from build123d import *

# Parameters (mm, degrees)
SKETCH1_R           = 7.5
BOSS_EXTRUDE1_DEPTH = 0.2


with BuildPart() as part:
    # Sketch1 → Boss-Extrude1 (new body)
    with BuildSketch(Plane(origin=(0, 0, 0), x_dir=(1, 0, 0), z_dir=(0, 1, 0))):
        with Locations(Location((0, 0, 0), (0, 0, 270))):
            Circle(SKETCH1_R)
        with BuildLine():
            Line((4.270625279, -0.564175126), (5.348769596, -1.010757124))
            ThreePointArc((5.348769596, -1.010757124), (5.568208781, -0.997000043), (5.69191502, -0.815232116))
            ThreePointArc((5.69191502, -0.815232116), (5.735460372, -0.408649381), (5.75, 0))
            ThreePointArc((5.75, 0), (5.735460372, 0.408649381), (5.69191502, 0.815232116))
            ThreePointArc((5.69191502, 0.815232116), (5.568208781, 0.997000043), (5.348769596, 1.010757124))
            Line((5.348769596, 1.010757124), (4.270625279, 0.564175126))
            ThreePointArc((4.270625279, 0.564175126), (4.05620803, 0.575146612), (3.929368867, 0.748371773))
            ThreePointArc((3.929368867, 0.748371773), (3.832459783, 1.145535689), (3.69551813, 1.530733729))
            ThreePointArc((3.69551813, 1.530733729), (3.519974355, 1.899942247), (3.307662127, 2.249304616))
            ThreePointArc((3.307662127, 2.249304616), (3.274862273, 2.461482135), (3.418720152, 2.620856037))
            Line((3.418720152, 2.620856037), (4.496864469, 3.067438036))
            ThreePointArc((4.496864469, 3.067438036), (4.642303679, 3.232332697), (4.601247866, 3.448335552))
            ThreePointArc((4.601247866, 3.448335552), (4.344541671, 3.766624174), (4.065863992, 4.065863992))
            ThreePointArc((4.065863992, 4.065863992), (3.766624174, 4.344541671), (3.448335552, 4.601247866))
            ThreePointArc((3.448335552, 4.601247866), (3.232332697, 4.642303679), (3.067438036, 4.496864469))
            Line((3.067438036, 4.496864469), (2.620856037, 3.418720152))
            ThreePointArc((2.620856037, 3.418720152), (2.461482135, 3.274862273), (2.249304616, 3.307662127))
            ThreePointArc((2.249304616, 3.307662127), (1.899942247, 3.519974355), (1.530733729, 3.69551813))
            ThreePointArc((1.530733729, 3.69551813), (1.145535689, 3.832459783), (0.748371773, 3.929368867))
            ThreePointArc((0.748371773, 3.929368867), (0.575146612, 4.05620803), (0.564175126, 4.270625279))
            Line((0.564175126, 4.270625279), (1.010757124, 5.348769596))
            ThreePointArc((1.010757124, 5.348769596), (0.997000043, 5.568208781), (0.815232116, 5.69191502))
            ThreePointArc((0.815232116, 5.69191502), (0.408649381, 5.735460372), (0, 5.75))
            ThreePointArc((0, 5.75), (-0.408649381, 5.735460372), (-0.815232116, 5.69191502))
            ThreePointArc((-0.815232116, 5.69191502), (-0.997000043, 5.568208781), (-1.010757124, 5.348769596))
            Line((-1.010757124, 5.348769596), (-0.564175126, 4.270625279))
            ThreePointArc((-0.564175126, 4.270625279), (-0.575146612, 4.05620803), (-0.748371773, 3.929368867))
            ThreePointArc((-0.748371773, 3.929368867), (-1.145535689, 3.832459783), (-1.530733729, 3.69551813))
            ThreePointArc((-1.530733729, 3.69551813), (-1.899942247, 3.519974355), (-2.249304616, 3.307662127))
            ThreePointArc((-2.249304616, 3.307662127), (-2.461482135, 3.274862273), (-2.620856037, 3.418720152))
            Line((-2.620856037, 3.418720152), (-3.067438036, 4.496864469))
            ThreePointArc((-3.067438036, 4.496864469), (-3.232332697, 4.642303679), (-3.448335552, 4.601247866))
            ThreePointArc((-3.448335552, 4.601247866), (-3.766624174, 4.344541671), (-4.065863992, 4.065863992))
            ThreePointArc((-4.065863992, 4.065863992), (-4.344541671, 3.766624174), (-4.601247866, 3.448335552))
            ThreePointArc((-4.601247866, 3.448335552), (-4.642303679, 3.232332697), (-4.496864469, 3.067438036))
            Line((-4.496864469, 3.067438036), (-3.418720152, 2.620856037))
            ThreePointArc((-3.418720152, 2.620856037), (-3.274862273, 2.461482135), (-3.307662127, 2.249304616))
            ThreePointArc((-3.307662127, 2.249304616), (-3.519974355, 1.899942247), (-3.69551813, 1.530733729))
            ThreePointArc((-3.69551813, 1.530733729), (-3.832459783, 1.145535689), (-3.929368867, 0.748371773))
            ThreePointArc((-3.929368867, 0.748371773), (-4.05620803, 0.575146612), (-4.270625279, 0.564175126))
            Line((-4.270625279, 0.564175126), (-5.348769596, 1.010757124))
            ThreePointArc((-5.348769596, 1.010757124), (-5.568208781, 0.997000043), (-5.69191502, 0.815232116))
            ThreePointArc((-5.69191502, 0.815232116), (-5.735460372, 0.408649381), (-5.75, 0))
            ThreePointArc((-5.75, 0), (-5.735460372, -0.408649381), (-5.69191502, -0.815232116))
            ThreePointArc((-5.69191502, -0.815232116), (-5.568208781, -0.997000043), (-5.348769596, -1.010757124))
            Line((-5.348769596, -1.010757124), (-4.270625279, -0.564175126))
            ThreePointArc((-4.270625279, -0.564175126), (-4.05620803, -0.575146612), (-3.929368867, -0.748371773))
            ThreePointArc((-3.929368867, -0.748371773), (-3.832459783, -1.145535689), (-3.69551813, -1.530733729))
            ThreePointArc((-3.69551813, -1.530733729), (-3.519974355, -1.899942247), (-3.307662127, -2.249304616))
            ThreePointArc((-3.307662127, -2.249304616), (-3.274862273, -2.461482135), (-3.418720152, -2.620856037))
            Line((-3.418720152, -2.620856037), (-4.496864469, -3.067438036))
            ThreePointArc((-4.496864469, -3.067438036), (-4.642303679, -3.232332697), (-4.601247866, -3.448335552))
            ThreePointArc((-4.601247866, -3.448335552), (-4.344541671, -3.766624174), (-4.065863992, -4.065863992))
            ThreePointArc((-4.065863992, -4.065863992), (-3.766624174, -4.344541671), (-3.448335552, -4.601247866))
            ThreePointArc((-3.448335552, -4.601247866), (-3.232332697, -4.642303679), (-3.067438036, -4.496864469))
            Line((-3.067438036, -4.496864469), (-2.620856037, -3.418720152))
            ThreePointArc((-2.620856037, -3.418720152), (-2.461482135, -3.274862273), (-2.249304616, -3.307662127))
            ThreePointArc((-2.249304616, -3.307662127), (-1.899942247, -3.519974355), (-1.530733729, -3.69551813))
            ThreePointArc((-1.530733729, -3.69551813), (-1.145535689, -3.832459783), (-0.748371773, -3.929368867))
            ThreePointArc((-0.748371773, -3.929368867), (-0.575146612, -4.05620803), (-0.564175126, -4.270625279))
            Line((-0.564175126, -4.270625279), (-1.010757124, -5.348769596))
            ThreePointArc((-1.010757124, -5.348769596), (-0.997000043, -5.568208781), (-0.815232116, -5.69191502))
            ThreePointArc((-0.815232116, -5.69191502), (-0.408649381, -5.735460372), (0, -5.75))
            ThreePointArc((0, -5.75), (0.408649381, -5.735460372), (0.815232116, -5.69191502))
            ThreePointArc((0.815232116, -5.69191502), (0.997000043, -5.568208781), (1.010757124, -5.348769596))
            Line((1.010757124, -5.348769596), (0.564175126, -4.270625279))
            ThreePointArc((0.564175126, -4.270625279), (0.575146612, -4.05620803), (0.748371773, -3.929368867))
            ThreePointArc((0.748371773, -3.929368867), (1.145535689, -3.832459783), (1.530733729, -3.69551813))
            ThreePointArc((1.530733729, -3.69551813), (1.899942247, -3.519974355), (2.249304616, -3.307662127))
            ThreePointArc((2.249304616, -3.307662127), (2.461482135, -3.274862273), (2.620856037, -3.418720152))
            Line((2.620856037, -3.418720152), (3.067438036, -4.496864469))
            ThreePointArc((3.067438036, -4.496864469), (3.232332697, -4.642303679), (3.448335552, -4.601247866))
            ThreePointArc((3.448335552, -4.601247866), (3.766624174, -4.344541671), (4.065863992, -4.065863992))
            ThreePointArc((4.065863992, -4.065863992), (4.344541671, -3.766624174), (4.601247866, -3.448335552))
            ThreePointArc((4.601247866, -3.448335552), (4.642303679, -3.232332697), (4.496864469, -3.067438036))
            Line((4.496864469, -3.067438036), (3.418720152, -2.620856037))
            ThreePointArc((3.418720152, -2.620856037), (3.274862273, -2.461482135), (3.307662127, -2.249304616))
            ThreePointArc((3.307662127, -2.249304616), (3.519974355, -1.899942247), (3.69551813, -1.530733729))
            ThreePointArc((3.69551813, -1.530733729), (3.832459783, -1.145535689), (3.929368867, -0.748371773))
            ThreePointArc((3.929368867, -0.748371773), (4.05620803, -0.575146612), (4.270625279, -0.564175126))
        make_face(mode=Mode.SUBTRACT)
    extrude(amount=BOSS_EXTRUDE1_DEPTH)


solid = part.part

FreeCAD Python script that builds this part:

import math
import FreeCAD as App
import Part
import Sketcher
from FreeCAD import Vector
Q = App.Units.Quantity

doc = App.newDocument("Part")
body = doc.addObject("PartDesign::Body", "Body")

# Sketch on XZ plane
sketch1 = doc.addObject("Sketcher::SketchObject", "Sketch")
body.addObject(sketch1)
sketch1.AttachmentSupport = (doc.XZ_Plane, [""])
sketch1.MapMode = "FlatFace"
sketch1.addGeometry([
    Part.Circle(Vector(0, 0, 0), Vector(0, 0, 1), 7.5),  # 0
    Part.LineSegment(Vector(5.35, 1.01, 0), Vector(4.27, 0.56, 0)),  # 1
    Part.ArcOfCircle(Part.Circle(Vector(4.17, 0.8, 0), Vector(0, 0, 1), 0.25), math.radians(-169), math.radians(-67)),  # 2
    Part.ArcOfCircle(Part.Circle(Vector(0, 0, 0), Vector(0, 0, 1), 4), math.radians(10.78), math.radians(22.5)),  # 3
    Part.ArcOfCircle(Part.Circle(Vector(0, 0, 0), Vector(0, 0, 1), 4), math.radians(22.5), math.radians(34.22)),  # 4
    Part.ArcOfCircle(Part.Circle(Vector(3.51, 2.39, 0), Vector(0, 0, 1), 0.25), math.radians(112), math.radians(214)),  # 5
    Part.LineSegment(Vector(3.42, 2.62, 0), Vector(4.5, 3.07, 0)),  # 6
    Part.ArcOfCircle(Part.Circle(Vector(4.4, 3.3, 0), Vector(0, 0, 1), 0.25), math.radians(-67), math.radians(37)),  # 7
    Part.ArcOfCircle(Part.Circle(Vector(0, 0, 0), Vector(0, 0, 1), 5.75), math.radians(36.85), math.radians(45)),  # 8
    Part.ArcOfCircle(Part.Circle(Vector(0, 0, 0), Vector(0, 0, 1), 5.75), math.radians(45), math.radians(53.15)),  # 9
    Part.ArcOfCircle(Part.Circle(Vector(3.3, 4.4, 0), Vector(0, 0, 1), 0.25), math.radians(53), math.radians(157)),  # 10
    Part.LineSegment(Vector(3.07, 4.5, 0), Vector(2.62, 3.42, 0)),  # 11
    Part.ArcOfCircle(Part.Circle(Vector(2.39, 3.51, 0), Vector(0, 0, 1), 0.25), math.radians(-124), math.radians(-22)),  # 12
    Part.ArcOfCircle(Part.Circle(Vector(0, 0, 0), Vector(0, 0, 1), 4), math.radians(55.78), math.radians(67.5)),  # 13
    Part.ArcOfCircle(Part.Circle(Vector(0, 0, 0), Vector(0, 0, 1), 4), math.radians(67.5), math.radians(79.22)),  # 14
    Part.ArcOfCircle(Part.Circle(Vector(0.8, 4.17, 0), Vector(0, 0, 1), 0.25), math.radians(157), math.radians(259)),  # 15
    Part.LineSegment(Vector(0.56, 4.27, 0), Vector(1.01, 5.35, 0)),  # 16
    Part.ArcOfCircle(Part.Circle(Vector(0.78, 5.44, 0), Vector(0, 0, 1), 0.25), math.radians(-23), math.radians(82)),  # 17
    Part.ArcOfCircle(Part.Circle(Vector(0, 0, 0), Vector(0, 0, 1), 5.75), math.radians(81.85), math.radians(90)),  # 18
    Part.ArcOfCircle(Part.Circle(Vector(0, 0, 0), Vector(0, 0, 1), 5.75), math.radians(90), math.radians(98.15)),  # 19
    Part.ArcOfCircle(Part.Circle(Vector(-0.78, 5.44, 0), Vector(0, 0, 1), 0.25), math.radians(98), math.radians(203)),  # 20
    Part.LineSegment(Vector(-1.01, 5.35, 0), Vector(-0.56, 4.27, 0)),  # 21
    Part.ArcOfCircle(Part.Circle(Vector(-0.8, 4.17, 0), Vector(0, 0, 1), 0.25), math.radians(-79), math.radians(23)),  # 22
    Part.ArcOfCircle(Part.Circle(Vector(0, 0, 0), Vector(0, 0, 1), 4), math.radians(100.78), math.radians(112.5)),  # 23
    Part.ArcOfCircle(Part.Circle(Vector(0, 0, 0), Vector(0, 0, 1), 4), math.radians(112.5), math.radians(124.22)),  # 24
    Part.ArcOfCircle(Part.Circle(Vector(-2.39, 3.51, 0), Vector(0, 0, 1), 0.25), math.radians(-158), math.radians(-56)),  # 25
    Part.LineSegment(Vector(-2.62, 3.42, 0), Vector(-3.07, 4.5, 0)),  # 26
    Part.ArcOfCircle(Part.Circle(Vector(-3.3, 4.4, 0), Vector(0, 0, 1), 0.25), math.radians(23), math.radians(127)),  # 27
    Part.ArcOfCircle(Part.Circle(Vector(0, 0, 0), Vector(0, 0, 1), 5.75), math.radians(126.85), math.radians(135)),  # 28
    Part.ArcOfCircle(Part.Circle(Vector(0, 0, 0), Vector(0, 0, 1), 5.75), math.radians(135), math.radians(143.15)),  # 29
    Part.ArcOfCircle(Part.Circle(Vector(-4.4, 3.3, 0), Vector(0, 0, 1), 0.25), math.radians(143), math.radians(247)),  # 30
    Part.LineSegment(Vector(-4.5, 3.07, 0), Vector(-3.42, 2.62, 0)),  # 31
    Part.ArcOfCircle(Part.Circle(Vector(-3.51, 2.39, 0), Vector(0, 0, 1), 0.25), math.radians(-34), math.radians(68)),  # 32
    Part.ArcOfCircle(Part.Circle(Vector(0, 0, 0), Vector(0, 0, 1), 4), math.radians(145.78), math.radians(157.5)),  # 33
    Part.ArcOfCircle(Part.Circle(Vector(0, 0, 0), Vector(0, 0, 1), 4), math.radians(157.5), math.radians(169.22)),  # 34
    Part.ArcOfCircle(Part.Circle(Vector(-4.17, 0.8, 0), Vector(0, 0, 1), 0.25), math.radians(-113), math.radians(-11)),  # 35
    Part.LineSegment(Vector(-4.27, 0.56, 0), Vector(-5.35, 1.01, 0)),  # 36
    Part.ArcOfCircle(Part.Circle(Vector(-5.44, 0.78, 0), Vector(0, 0, 1), 0.25), math.radians(67), math.radians(172)),  # 37
    Part.ArcOfCircle(Part.Circle(Vector(0, 0, 0), Vector(0, 0, 1), 5.75), math.radians(171.85), math.radians(180)),  # 38
    Part.ArcOfCircle(Part.Circle(Vector(0, 0, 0), Vector(0, 0, 1), 5.75), math.radians(-180), math.radians(-171.85)),  # 39
    Part.ArcOfCircle(Part.Circle(Vector(-5.44, -0.78, 0), Vector(0, 0, 1), 0.25), math.radians(-172), math.radians(-67)),  # 40
    Part.LineSegment(Vector(-5.35, -1.01, 0), Vector(-4.27, -0.56, 0)),  # 41
    Part.ArcOfCircle(Part.Circle(Vector(-4.17, -0.8, 0), Vector(0, 0, 1), 0.25), math.radians(11), math.radians(113)),  # 42
    Part.ArcOfCircle(Part.Circle(Vector(0, 0, 0), Vector(0, 0, 1), 4), math.radians(-169.22), math.radians(-157.5)),  # 43
    Part.ArcOfCircle(Part.Circle(Vector(0, 0, 0), Vector(0, 0, 1), 4), math.radians(-157.5), math.radians(-145.78)),  # 44
    Part.ArcOfCircle(Part.Circle(Vector(-3.51, -2.39, 0), Vector(0, 0, 1), 0.25), math.radians(-68), math.radians(34)),  # 45
    Part.LineSegment(Vector(-3.42, -2.62, 0), Vector(-4.5, -3.07, 0)),  # 46
    Part.ArcOfCircle(Part.Circle(Vector(-4.4, -3.3, 0), Vector(0, 0, 1), 0.25), math.radians(113), math.radians(217)),  # 47
    Part.ArcOfCircle(Part.Circle(Vector(0, 0, 0), Vector(0, 0, 1), 5.75), math.radians(-143.15), math.radians(-135)),  # 48
    Part.ArcOfCircle(Part.Circle(Vector(0, 0, 0), Vector(0, 0, 1), 5.75), math.radians(-135), math.radians(-126.85)),  # 49
    Part.ArcOfCircle(Part.Circle(Vector(-3.3, -4.4, 0), Vector(0, 0, 1), 0.25), math.radians(-127), math.radians(-23)),  # 50
    Part.LineSegment(Vector(-3.07, -4.5, 0), Vector(-2.62, -3.42, 0)),  # 51
    Part.ArcOfCircle(Part.Circle(Vector(-2.39, -3.51, 0), Vector(0, 0, 1), 0.25), math.radians(56), math.radians(158)),  # 52
    Part.ArcOfCircle(Part.Circle(Vector(0, 0, 0), Vector(0, 0, 1), 4), math.radians(-124.22), math.radians(-112.5)),  # 53
    Part.ArcOfCircle(Part.Circle(Vector(0, 0, 0), Vector(0, 0, 1), 4), math.radians(-112.5), math.radians(-100.78)),  # 54
    Part.ArcOfCircle(Part.Circle(Vector(-0.8, -4.17, 0), Vector(0, 0, 1), 0.25), math.radians(-23), math.radians(79)),  # 55
    Part.LineSegment(Vector(-0.56, -4.27, 0), Vector(-1.01, -5.35, 0)),  # 56
    Part.ArcOfCircle(Part.Circle(Vector(-0.78, -5.44, 0), Vector(0, 0, 1), 0.25), math.radians(157), math.radians(262)),  # 57
    Part.ArcOfCircle(Part.Circle(Vector(0, 0, 0), Vector(0, 0, 1), 5.75), math.radians(-98.15), math.radians(-90)),  # 58
    Part.ArcOfCircle(Part.Circle(Vector(0, 0, 0), Vector(0, 0, 1), 5.75), math.radians(-90), math.radians(-81.85)),  # 59
    Part.ArcOfCircle(Part.Circle(Vector(0.78, -5.44, 0), Vector(0, 0, 1), 0.25), math.radians(-82), math.radians(23)),  # 60
    Part.LineSegment(Vector(1.01, -5.35, 0), Vector(0.56, -4.27, 0)),  # 61
    Part.ArcOfCircle(Part.Circle(Vector(0.8, -4.17, 0), Vector(0, 0, 1), 0.25), math.radians(101), math.radians(203)),  # 62
    Part.ArcOfCircle(Part.Circle(Vector(0, 0, 0), Vector(0, 0, 1), 4), math.radians(-79.22), math.radians(-67.5)),  # 63
    Part.ArcOfCircle(Part.Circle(Vector(0, 0, 0), Vector(0, 0, 1), 4), math.radians(-67.5), math.radians(-55.78)),  # 64
    Part.ArcOfCircle(Part.Circle(Vector(2.39, -3.51, 0), Vector(0, 0, 1), 0.25), math.radians(22), math.radians(124)),  # 65
    Part.LineSegment(Vector(2.62, -3.42, 0), Vector(3.07, -4.5, 0)),  # 66
    Part.ArcOfCircle(Part.Circle(Vector(3.3, -4.4, 0), Vector(0, 0, 1), 0.25), math.radians(-157), math.radians(-53)),  # 67
    Part.ArcOfCircle(Part.Circle(Vector(0, 0, 0), Vector(0, 0, 1), 5.75), math.radians(-53.15), math.radians(-45)),  # 68
    Part.ArcOfCircle(Part.Circle(Vector(0, 0, 0), Vector(0, 0, 1), 5.75), math.radians(-45), math.radians(-36.85)),  # 69
    Part.ArcOfCircle(Part.Circle(Vector(4.4, -3.3, 0), Vector(0, 0, 1), 0.25), math.radians(-37), math.radians(67)),  # 70
    Part.LineSegment(Vector(4.5, -3.07, 0), Vector(3.42, -2.62, 0)),  # 71
    Part.ArcOfCircle(Part.Circle(Vector(3.51, -2.39, 0), Vector(0, 0, 1), 0.25), math.radians(146), math.radians(248)),  # 72
    Part.ArcOfCircle(Part.Circle(Vector(0, 0, 0), Vector(0, 0, 1), 4), math.radians(-34.22), math.radians(-22.5)),  # 73
    Part.ArcOfCircle(Part.Circle(Vector(0, 0, 0), Vector(0, 0, 1), 4), math.radians(-22.5), math.radians(-10.78)),  # 74
    Part.ArcOfCircle(Part.Circle(Vector(4.17, -0.8, 0), Vector(0, 0, 1), 0.25), math.radians(67), math.radians(169)),  # 75
    Part.LineSegment(Vector(4.27, -0.56, 0), Vector(5.35, -1.01, 0)),  # 76
    Part.ArcOfCircle(Part.Circle(Vector(5.44, -0.78, 0), Vector(0, 0, 1), 0.25), math.radians(-113), math.radians(-8)),  # 77
    Part.ArcOfCircle(Part.Circle(Vector(0, 0, 0), Vector(0, 0, 1), 5.75), math.radians(-8.15), math.radians(0)),  # 78
    Part.ArcOfCircle(Part.Circle(Vector(0, 0, 0), Vector(0, 0, 1), 5.75), math.radians(0), math.radians(8.15)),  # 79
    Part.ArcOfCircle(Part.Circle(Vector(5.44, 0.78, 0), Vector(0, 0, 1), 0.25), math.radians(8), math.radians(113)),  # 80
], False)
sketch1.addConstraint([
    Sketcher.Constraint("Tangent", 1, 2, 2, 2),
    Sketcher.Constraint("Tangent", 2, 1, 3, 1),
    Sketcher.Constraint("Tangent", 3, 2, 4, 1),
    Sketcher.Constraint("Tangent", 4, 2, 5, 2),
    Sketcher.Constraint("Tangent", 5, 1, 6, 1),
    Sketcher.Constraint("Tangent", 6, 2, 7, 1),
    Sketcher.Constraint("Tangent", 7, 2, 8, 1),
    Sketcher.Constraint("Tangent", 8, 2, 9, 1),
    Sketcher.Constraint("Tangent", 9, 2, 10, 1),
    Sketcher.Constraint("Tangent", 10, 2, 11, 1),
    Sketcher.Constraint("Tangent", 11, 2, 12, 2),
    Sketcher.Constraint("Tangent", 12, 1, 13, 1),
    Sketcher.Constraint("Tangent", 13, 2, 14, 1),
    Sketcher.Constraint("Tangent", 14, 2, 15, 2),
    Sketcher.Constraint("Tangent", 15, 1, 16, 1),
    Sketcher.Constraint("Tangent", 16, 2, 17, 1),
    Sketcher.Constraint("Tangent", 17, 2, 18, 1),
    Sketcher.Constraint("Tangent", 18, 2, 19, 1),
    Sketcher.Constraint("Tangent", 19, 2, 20, 1),
    Sketcher.Constraint("Tangent", 20, 2, 21, 1),
    Sketcher.Constraint("Tangent", 21, 2, 22, 2),
    Sketcher.Constraint("Tangent", 22, 1, 23, 1),
    Sketcher.Constraint("Tangent", 23, 2, 24, 1),
    Sketcher.Constraint("Tangent", 24, 2, 25, 2),
    Sketcher.Constraint("Tangent", 25, 1, 26, 1),
    Sketcher.Constraint("Tangent", 26, 2, 27, 1),
    Sketcher.Constraint("Tangent", 27, 2, 28, 1),
    Sketcher.Constraint("Tangent", 28, 2, 29, 1),
    Sketcher.Constraint("Tangent", 29, 2, 30, 1),
    Sketcher.Constraint("Tangent", 30, 2, 31, 1),
    Sketcher.Constraint("Tangent", 31, 2, 32, 2),
    Sketcher.Constraint("Tangent", 32, 1, 33, 1),
    Sketcher.Constraint("Tangent", 33, 2, 34, 1),
    Sketcher.Constraint("Tangent", 34, 2, 35, 2),
    Sketcher.Constraint("Tangent", 35, 1, 36, 1),
    Sketcher.Constraint("Tangent", 36, 2, 37, 1),
    Sketcher.Constraint("Tangent", 37, 2, 38, 1),
    Sketcher.Constraint("Tangent", 38, 2, 39, 1),
    Sketcher.Constraint("Tangent", 39, 2, 40, 1),
    Sketcher.Constraint("Tangent", 40, 2, 41, 1),
    Sketcher.Constraint("Tangent", 41, 2, 42, 2),
    Sketcher.Constraint("Tangent", 42, 1, 43, 1),
    Sketcher.Constraint("Tangent", 43, 2, 44, 1),
    Sketcher.Constraint("Tangent", 44, 2, 45, 2),
    Sketcher.Constraint("Tangent", 45, 1, 46, 1),
    Sketcher.Constraint("Tangent", 46, 2, 47, 1),
    Sketcher.Constraint("Tangent", 47, 2, 48, 1),
    Sketcher.Constraint("Tangent", 48, 2, 49, 1),
    Sketcher.Constraint("Tangent", 49, 2, 50, 1),
    Sketcher.Constraint("Tangent", 50, 2, 51, 1),
    Sketcher.Constraint("Tangent", 51, 2, 52, 2),
    Sketcher.Constraint("Tangent", 52, 1, 53, 1),
    Sketcher.Constraint("Tangent", 53, 2, 54, 1),
    Sketcher.Constraint("Tangent", 54, 2, 55, 2),
    Sketcher.Constraint("Tangent", 55, 1, 56, 1),
    Sketcher.Constraint("Tangent", 56, 2, 57, 1),
    Sketcher.Constraint("Tangent", 57, 2, 58, 1),
    Sketcher.Constraint("Tangent", 58, 2, 59, 1),
    Sketcher.Constraint("Tangent", 59, 2, 60, 1),
    Sketcher.Constraint("Tangent", 60, 2, 61, 1),
    Sketcher.Constraint("Tangent", 61, 2, 62, 2),
    Sketcher.Constraint("Tangent", 62, 1, 63, 1),
    Sketcher.Constraint("Tangent", 63, 2, 64, 1),
    Sketcher.Constraint("Tangent", 64, 2, 65, 2),
    Sketcher.Constraint("Tangent", 65, 1, 66, 1),
    Sketcher.Constraint("Tangent", 66, 2, 67, 1),
    Sketcher.Constraint("Tangent", 67, 2, 68, 1),
    Sketcher.Constraint("Tangent", 68, 2, 69, 1),
    Sketcher.Constraint("Tangent", 69, 2, 70, 1),
    Sketcher.Constraint("Tangent", 70, 2, 71, 1),
    Sketcher.Constraint("Tangent", 71, 2, 72, 2),
    Sketcher.Constraint("Tangent", 72, 1, 73, 1),
    Sketcher.Constraint("Tangent", 73, 2, 74, 1),
    Sketcher.Constraint("Tangent", 74, 2, 75, 2),
    Sketcher.Constraint("Tangent", 75, 1, 76, 1),
    Sketcher.Constraint("Tangent", 76, 2, 77, 1),
    Sketcher.Constraint("Tangent", 77, 2, 78, 1),
    Sketcher.Constraint("Tangent", 78, 2, 79, 1),
    Sketcher.Constraint("Tangent", 79, 2, 80, 1),
    Sketcher.Constraint("Tangent", 80, 2, 1, 1),
    Sketcher.Constraint("Coincident", 0, 3, -1, 1),
    Sketcher.Constraint("Coincident", 3, 3, -1, 1),
    Sketcher.Constraint("Coincident", 8, 3, -1, 1),
    Sketcher.Constraint("Coincident", 13, 3, -1, 1),
    Sketcher.Constraint("Coincident", 18, 3, -1, 1),
    Sketcher.Constraint("Coincident", 23, 3, -1, 1),
    Sketcher.Constraint("Coincident", 28, 3, -1, 1),
    Sketcher.Constraint("Coincident", 33, 3, -1, 1),
    Sketcher.Constraint("Coincident", 38, 3, -1, 1),
    Sketcher.Constraint("Coincident", 43, 3, -1, 1),
    Sketcher.Constraint("Coincident", 48, 3, -1, 1),
    Sketcher.Constraint("Coincident", 53, 3, -1, 1),
    Sketcher.Constraint("Coincident", 58, 3, -1, 1),
    Sketcher.Constraint("Coincident", 63, 3, -1, 1),
    Sketcher.Constraint("Coincident", 68, 3, -1, 1),
    Sketcher.Constraint("Coincident", 73, 3, -1, 1),
    Sketcher.Constraint("Coincident", 78, 3, -1, 1),
    Sketcher.Constraint("Equal", 3, 4),
    Sketcher.Constraint("Equal", 2, 5),
    Sketcher.Constraint("Equal", 5, 7),
    Sketcher.Constraint("Equal", 8, 9),
    Sketcher.Constraint("Equal", 7, 10),
    Sketcher.Constraint("Equal", 10, 12),
    Sketcher.Constraint("Equal", 4, 13),
    Sketcher.Constraint("Equal", 13, 14),
    Sketcher.Constraint("Equal", 12, 15),
    Sketcher.Constraint("Equal", 15, 17),
    Sketcher.Constraint("Equal", 9, 18),
    Sketcher.Constraint("Equal", 18, 19),
    Sketcher.Constraint("Equal", 17, 20),
    Sketcher.Constraint("Equal", 20, 22),
    Sketcher.Constraint("Equal", 14, 23),
    Sketcher.Constraint("Equal", 23, 24),
    Sketcher.Constraint("Equal", 22, 25),
    Sketcher.Constraint("Equal", 25, 27),
    Sketcher.Constraint("Equal", 19, 28),
    Sketcher.Constraint("Equal", 28, 29),
    Sketcher.Constraint("Equal", 27, 30),
    Sketcher.Constraint("Equal", 30, 32),
    Sketcher.Constraint("Equal", 24, 33),
    Sketcher.Constraint("Equal", 33, 34),
    Sketcher.Constraint("Equal", 32, 35),
    Sketcher.Constraint("Equal", 35, 37),
    Sketcher.Constraint("Equal", 29, 38),
    Sketcher.Constraint("Equal", 38, 39),
    Sketcher.Constraint("Equal", 37, 40),
    Sketcher.Constraint("Equal", 40, 42),
    Sketcher.Constraint("Equal", 34, 43),
    Sketcher.Constraint("Equal", 43, 44),
    Sketcher.Constraint("Equal", 42, 45),
    Sketcher.Constraint("Equal", 45, 47),
    Sketcher.Constraint("Equal", 39, 48),
    Sketcher.Constraint("Equal", 48, 49),
    Sketcher.Constraint("Equal", 47, 50),
    Sketcher.Constraint("Equal", 50, 52),
    Sketcher.Constraint("Equal", 44, 53),
    Sketcher.Constraint("Equal", 53, 54),
    Sketcher.Constraint("Equal", 52, 55),
    Sketcher.Constraint("Equal", 55, 57),
    Sketcher.Constraint("Equal", 49, 58),
    Sketcher.Constraint("Equal", 58, 59),
    Sketcher.Constraint("Equal", 57, 60),
    Sketcher.Constraint("Equal", 60, 62),
    Sketcher.Constraint("Equal", 54, 63),
    Sketcher.Constraint("Equal", 63, 64),
    Sketcher.Constraint("Equal", 62, 65),
    Sketcher.Constraint("Equal", 65, 67),
    Sketcher.Constraint("Equal", 59, 68),
    Sketcher.Constraint("Equal", 68, 69),
    Sketcher.Constraint("Equal", 67, 70),
    Sketcher.Constraint("Equal", 70, 72),
    Sketcher.Constraint("Equal", 64, 73),
    Sketcher.Constraint("Equal", 73, 74),
    Sketcher.Constraint("Equal", 72, 75),
    Sketcher.Constraint("Equal", 75, 77),
    Sketcher.Constraint("Equal", 69, 78),
    Sketcher.Constraint("Equal", 78, 79),
    Sketcher.Constraint("Equal", 77, 80),
    Sketcher.Constraint("Symmetric", 1, 2, 41, 2, -1, 1),
    Sketcher.Constraint("Symmetric", 5, 1, 45, 1, -1, 1),
    Sketcher.Constraint("Symmetric", 10, 2, 50, 2, -1, 1),
    Sketcher.Constraint("Symmetric", 15, 1, 55, 1, -1, 1),
    Sketcher.Constraint("Symmetric", 20, 2, 60, 2, -1, 1),
    Sketcher.Constraint("Symmetric", 25, 1, 65, 1, -1, 1),
    Sketcher.Constraint("Symmetric", 30, 2, 70, 2, -1, 1),
    Sketcher.Constraint("Symmetric", 35, 1, 75, 1, -1, 1),
    Sketcher.Constraint("Symmetric", 16, 2, 20, 2, -2),
    Sketcher.Constraint("Symmetric", 11, 2, 25, 1, -2),
    Sketcher.Constraint("Symmetric", 6, 2, 30, 2, -2),
    Sketcher.Constraint("Symmetric", 1, 2, 35, 1, -2),
    Sketcher.Constraint("PointOnObject", 18, 2, -2),
    Sketcher.Constraint("PointOnObject", 38, 2, -1),
    Sketcher.Constraint("PointOnObject", 58, 2, -2),
    Sketcher.Constraint("PointOnObject", 78, 2, -1),
    Sketcher.Constraint("Parallel", 1, 6),
    Sketcher.Constraint("Parallel", 11, 16),
    Sketcher.Constraint("Perpendicular", 6, 21),
    Sketcher.Constraint("Horizontal", 13, 2, 23, 2),
    Sketcher.Constraint("Horizontal", 8, 2, 28, 2),
    Sketcher.Constraint("Horizontal", 3, 2, 33, 2),
    Sketcher.Constraint("Horizontal", 53, 2, 63, 2),
    Sketcher.Constraint("Horizontal", 48, 2, 68, 2),
    Sketcher.Constraint("Horizontal", 43, 2, 73, 2),
    Sketcher.Constraint("Vertical", 33, 2, 43, 2),
    Sketcher.Constraint("Vertical", 28, 2, 48, 2),
    Sketcher.Constraint("Vertical", 23, 2, 53, 2),
    Sketcher.Constraint("Equal", 1, 6),
    Sketcher.Constraint("Equal", 6, 11),
    Sketcher.Constraint("Equal", 11, 16),
    Sketcher.Constraint("Diameter", 0, 15.0),
    Sketcher.Constraint("Radius", 3, 4.0),
    Sketcher.Constraint("Radius", 2, 0.25),
    Sketcher.Constraint("Radius", 8, 5.75),
    Sketcher.Constraint("Angle", 1, Q("-157.5 deg")),
    Sketcher.Constraint("DistanceX", -1, 1, 5, 3, 3.514391),
    Sketcher.Constraint("DistanceX", -1, 1, 3, 2, 3.695518),
    Sketcher.Constraint("DistanceY", -1, 1, 13, 2, 3.695518),
    Sketcher.Constraint("DistanceX", -1, 1, 8, 2, 4.065864),
])
pad1 = doc.addObject("PartDesign::Pad", "Pad")
body.addObject(pad1)
pad1.Profile = sketch1
pad1.Length = 0.2
pad1.Reversed = True

doc.recompute()
